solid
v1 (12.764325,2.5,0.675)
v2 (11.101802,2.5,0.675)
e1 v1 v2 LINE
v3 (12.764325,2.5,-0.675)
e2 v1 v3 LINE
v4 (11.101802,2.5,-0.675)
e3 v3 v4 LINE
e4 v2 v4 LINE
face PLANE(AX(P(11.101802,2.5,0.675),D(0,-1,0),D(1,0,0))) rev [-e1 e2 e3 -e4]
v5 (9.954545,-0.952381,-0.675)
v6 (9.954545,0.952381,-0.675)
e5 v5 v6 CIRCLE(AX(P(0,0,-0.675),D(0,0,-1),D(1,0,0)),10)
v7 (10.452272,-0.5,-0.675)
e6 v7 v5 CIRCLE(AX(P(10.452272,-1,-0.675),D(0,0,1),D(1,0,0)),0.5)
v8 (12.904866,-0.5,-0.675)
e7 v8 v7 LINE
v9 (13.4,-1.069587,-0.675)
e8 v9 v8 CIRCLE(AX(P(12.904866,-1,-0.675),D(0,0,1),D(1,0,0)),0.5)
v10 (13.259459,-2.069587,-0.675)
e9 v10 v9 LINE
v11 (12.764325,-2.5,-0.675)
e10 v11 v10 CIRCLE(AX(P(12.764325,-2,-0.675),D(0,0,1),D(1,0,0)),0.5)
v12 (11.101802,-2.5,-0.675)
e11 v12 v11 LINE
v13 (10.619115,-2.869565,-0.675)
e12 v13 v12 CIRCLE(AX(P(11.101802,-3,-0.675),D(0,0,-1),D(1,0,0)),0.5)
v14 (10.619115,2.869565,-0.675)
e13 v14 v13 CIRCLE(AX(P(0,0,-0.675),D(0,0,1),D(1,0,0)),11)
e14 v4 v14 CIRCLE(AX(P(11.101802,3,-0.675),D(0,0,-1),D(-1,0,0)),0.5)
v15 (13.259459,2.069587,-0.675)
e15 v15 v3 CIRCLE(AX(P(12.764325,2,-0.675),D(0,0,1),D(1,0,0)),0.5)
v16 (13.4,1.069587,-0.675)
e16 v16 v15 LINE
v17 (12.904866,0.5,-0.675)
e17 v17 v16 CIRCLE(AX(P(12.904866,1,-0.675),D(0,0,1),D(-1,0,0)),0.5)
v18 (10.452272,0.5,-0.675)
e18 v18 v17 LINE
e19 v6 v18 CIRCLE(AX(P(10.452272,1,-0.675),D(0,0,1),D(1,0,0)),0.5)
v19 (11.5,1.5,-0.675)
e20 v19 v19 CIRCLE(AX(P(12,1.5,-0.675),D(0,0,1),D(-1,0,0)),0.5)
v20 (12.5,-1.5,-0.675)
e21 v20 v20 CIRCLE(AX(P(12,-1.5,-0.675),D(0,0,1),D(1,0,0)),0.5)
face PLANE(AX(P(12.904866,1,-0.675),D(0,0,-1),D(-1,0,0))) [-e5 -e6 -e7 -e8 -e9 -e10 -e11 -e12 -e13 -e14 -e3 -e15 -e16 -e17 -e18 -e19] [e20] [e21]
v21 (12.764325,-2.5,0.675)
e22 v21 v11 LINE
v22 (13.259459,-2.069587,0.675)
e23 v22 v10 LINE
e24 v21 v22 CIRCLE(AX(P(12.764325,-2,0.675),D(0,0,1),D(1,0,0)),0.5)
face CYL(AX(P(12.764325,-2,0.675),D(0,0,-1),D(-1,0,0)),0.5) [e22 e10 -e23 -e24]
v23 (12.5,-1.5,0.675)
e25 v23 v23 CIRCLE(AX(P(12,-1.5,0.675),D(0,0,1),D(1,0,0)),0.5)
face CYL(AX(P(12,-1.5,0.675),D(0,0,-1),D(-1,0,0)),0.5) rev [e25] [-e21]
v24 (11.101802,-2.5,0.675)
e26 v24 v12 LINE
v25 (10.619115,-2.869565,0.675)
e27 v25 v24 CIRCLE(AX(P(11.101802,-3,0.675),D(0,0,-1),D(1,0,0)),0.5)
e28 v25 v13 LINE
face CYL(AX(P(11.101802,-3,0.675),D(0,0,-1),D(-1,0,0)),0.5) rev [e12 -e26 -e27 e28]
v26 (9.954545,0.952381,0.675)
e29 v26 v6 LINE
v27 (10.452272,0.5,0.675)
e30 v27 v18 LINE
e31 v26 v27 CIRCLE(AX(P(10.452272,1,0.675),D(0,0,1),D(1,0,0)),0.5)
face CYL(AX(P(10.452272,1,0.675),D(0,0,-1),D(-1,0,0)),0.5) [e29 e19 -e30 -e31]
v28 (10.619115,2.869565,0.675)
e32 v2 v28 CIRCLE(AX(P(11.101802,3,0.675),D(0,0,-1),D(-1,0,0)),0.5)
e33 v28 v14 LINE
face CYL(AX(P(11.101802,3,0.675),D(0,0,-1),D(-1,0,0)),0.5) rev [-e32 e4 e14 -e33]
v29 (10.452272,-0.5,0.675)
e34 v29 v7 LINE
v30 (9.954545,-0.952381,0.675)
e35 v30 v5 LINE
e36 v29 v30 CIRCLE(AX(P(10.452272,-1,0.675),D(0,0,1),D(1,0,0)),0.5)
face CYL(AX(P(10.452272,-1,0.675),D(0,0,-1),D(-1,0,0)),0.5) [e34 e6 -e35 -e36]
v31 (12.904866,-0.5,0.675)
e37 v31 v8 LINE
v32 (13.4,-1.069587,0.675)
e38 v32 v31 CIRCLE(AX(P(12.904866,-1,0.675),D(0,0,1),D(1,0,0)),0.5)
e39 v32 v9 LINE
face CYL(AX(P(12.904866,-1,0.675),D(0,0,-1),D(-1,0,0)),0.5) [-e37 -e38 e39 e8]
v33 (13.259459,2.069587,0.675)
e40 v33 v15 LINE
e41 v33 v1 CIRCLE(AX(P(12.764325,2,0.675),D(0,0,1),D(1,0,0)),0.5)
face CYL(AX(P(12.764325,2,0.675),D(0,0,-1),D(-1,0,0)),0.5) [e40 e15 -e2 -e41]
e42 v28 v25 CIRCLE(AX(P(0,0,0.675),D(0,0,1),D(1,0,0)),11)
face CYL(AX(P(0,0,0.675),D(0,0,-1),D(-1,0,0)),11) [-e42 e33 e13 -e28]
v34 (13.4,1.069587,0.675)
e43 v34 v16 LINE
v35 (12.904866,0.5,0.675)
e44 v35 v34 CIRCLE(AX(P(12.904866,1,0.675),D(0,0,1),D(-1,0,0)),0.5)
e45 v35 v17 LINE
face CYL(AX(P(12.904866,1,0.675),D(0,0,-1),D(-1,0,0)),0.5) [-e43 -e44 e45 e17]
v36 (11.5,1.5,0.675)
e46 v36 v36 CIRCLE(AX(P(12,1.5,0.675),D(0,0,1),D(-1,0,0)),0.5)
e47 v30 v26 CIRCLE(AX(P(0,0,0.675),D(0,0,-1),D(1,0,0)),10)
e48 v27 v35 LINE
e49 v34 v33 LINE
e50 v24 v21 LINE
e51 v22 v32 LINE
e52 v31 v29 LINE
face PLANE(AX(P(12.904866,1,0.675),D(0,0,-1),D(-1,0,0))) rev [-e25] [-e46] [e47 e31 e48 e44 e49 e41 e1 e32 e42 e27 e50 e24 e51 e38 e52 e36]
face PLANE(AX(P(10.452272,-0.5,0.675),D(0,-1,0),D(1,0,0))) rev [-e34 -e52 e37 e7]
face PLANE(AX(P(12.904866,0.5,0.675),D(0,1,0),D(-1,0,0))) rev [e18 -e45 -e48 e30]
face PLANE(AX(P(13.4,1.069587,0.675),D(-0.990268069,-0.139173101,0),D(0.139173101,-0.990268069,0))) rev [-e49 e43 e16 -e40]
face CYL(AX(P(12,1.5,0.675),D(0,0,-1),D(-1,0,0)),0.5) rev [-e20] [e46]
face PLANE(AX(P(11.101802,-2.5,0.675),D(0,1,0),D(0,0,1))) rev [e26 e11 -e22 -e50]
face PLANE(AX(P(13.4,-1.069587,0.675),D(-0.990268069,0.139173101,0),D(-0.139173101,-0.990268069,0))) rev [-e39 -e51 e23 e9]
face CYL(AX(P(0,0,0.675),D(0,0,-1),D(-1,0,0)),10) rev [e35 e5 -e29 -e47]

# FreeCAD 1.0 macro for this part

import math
import FreeCAD as App
import Part
import Sketcher
Q = App.Units.Quantity

doc = App.newDocument("Part")
params = doc.addObject("Spreadsheet::Sheet", "Params")
for row, (alias, value) in enumerate([
    ("sketch1_diameter", "1 mm"),
    ("sketch1_radius", "10 mm"),
    ("sketch1_radius2", "11 mm"),
    ("pad1_length", "1.35 mm"),
], start=1):
    params.set(f"A{row}", alias)
    params.set(f"B{row}", "=" + value)
    params.setAlias(f"B{row}", alias)

body = doc.addObject("PartDesign::Body", "Body")

sketch1 = doc.addObject("Sketcher::SketchObject", "Sketch")
body.addObject(sketch1)
sketch1.AttachmentSupport = (doc.XY_Plane, [""])
sketch1.MapMode = "FlatFace"
sketch1.addGeometry([
    Part.LineSegment(App.Vector(12.904866, -0.5, 0), App.Vector(10.452272, -0.5, 0)),
    Part.ArcOfCircle(Part.Circle(App.Vector(10.452272, -1, 0), App.Vector(0, 0, 1), 0.5), math.radians(90), math.radians(174.534976)),
    Part.ArcOfCircle(Part.Circle(App.Vector(0, 0, 0), App.Vector(0, 0, 1), 10), math.radians(5.465024), math.radians(354.534976)),
    Part.ArcOfCircle(Part.Circle(App.Vector(10.452272, 1, 0), App.Vector(0, 0, 1), 0.5), math.radians(-174.534976), math.radians(-90)),
    Part.LineSegment(App.Vector(10.452272, 0.5, 0), App.Vector(12.904866, 0.5, 0)),
    Part.ArcOfCircle(Part.Circle(App.Vector(12.904866, 1, 0), App.Vector(0, 0, 1), 0.5), math.radians(-90), math.radians(8)),
    Part.LineSegment(App.Vector(13.4, 1.069587, 0), App.Vector(13.259459, 2.069587, 0)),
    Part.ArcOfCircle(Part.Circle(App.Vector(12.764325, 2, 0), App.Vector(0, 0, 1), 0.5), math.radians(8), math.radians(90)),
    Part.LineSegment(App.Vector(12.764325, 2.5, 0), App.Vector(11.101802, 2.5, 0)),
    Part.ArcOfCircle(Part.Circle(App.Vector(11.101802, 3, 0), App.Vector(0, 0, 1), 0.5), math.radians(-164.878335), math.radians(-90)),
    Part.ArcOfCircle(Part.Circle(App.Vector(0, 0, 0), App.Vector(0, 0, 1), 11), math.radians(15.121665), math.radians(344.878335)),
    Part.ArcOfCircle(Part.Circle(App.Vector(11.101802, -3, 0), App.Vector(0, 0, 1), 0.5), math.radians(90), math.radians(164.878335)),
    Part.LineSegment(App.Vector(11.101802, -2.5, 0), App.Vector(12.764325, -2.5, 0)),
    Part.ArcOfCircle(Part.Circle(App.Vector(12.764325, -2, 0), App.Vector(0, 0, 1), 0.5), math.radians(-90), math.radians(-8)),
    Part.LineSegment(App.Vector(13.259459, -2.069587, 0), App.Vector(13.4, -1.069587, 0)),
    Part.ArcOfCircle(Part.Circle(App.Vector(12.904866, -1, 0), App.Vector(0, 0, 1), 0.5), math.radians(-8), math.radians(90)),
    Part.Circle(App.Vector(12, 1.5, 0), App.Vector(0, 0, 1), 0.5),
    Part.Circle(App.Vector(12, -1.5, 0), App.Vector(0, 0, 1), 0.5),
], False)
sketch1.addConstraint([
    Sketcher.Constraint("Tangent", 0, 2, 1, 1),
    Sketcher.Constraint("Tangent", 1, 2, 2, 2),
    Sketcher.Constraint("Tangent", 2, 1, 3, 1),
    Sketcher.Constraint("Tangent", 3, 2, 4, 1),
    Sketcher.Constraint("Tangent", 4, 2, 5, 1),
    Sketcher.Constraint("Tangent", 5, 2, 6, 1),
    Sketcher.Constraint("Tangent", 6, 2, 7, 1),
    Sketcher.Constraint("Tangent", 7, 2, 8, 1),
    Sketcher.Constraint("Tangent", 8, 2, 9, 2),
    Sketcher.Constraint("Tangent", 9, 1, 10, 1),
    Sketcher.Constraint("Tangent", 10, 2, 11, 2),
    Sketcher.Constraint("Tangent", 11, 1, 12, 1),
    Sketcher.Constraint("Tangent", 12, 2, 13, 1),
    Sketcher.Constraint("Tangent", 13, 2, 14, 1),
    Sketcher.Constraint("Tangent", 14, 2, 15, 1),
    Sketcher.Constraint("Tangent", 15, 2, 0, 1),
    Sketcher.Constraint("Horizontal", 0),
    Sketcher.Constraint("Horizontal", 4),
    Sketcher.Constraint("Horizontal", 8),
    Sketcher.Constraint("Horizontal", 12),
    Sketcher.Constraint("Coincident", 2, 3, -1, 1),
    Sketcher.Constraint("Coincident", 10, 3, -1, 1),
    Sketcher.Constraint("Equal", 1, 3),
    Sketcher.Constraint("Equal", 3, 5),
    Sketcher.Constraint("Equal", 5, 7),
    Sketcher.Constraint("Equal", 7, 9),
    Sketcher.Constraint("Equal", 9, 11),
    Sketcher.Constraint("Equal", 11, 13),
    Sketcher.Constraint("Equal", 13, 15),
    Sketcher.Constraint("Equal", 15, 16),
    Sketcher.Constraint("Equal", 16, 17),
    Sketcher.Constraint("Symmetric", 7, 3, 13, 3, -1),
    Sketcher.Constraint("Symmetric", 5, 3, 15, 3, -1),
    Sketcher.Constraint("Symmetric", 16, 3, 17, 3, -1),
    Sketcher.Constraint("Diameter", 16, Q("1 mm")),
    Sketcher.Constraint("Radius", 2, Q("10 mm")),
    Sketcher.Constraint("Radius", 10, Q("11 mm")),
    Sketcher.Constraint("Angle", 6, Q("98 deg")),
    Sketcher.Constraint("DistanceY", 1, 3, -1, 1, Q("1 mm")),
    Sketcher.Constraint("DistanceY", -1, 1, 7, 3, Q("2 mm")),
    Sketcher.Constraint("DistanceX", -1, 1, 16, 3, Q("12 mm")),
    Sketcher.Constraint("DistanceY", 17, 3, 0, 2, Q("1 mm")),
    Sketcher.Constraint("DistanceX", -1, 1, 5, 2, Q("13.4 mm")),
])
sketch1.setExpression("Constraints[34]", "Params.sketch1_diameter")
sketch1.setExpression("Constraints[35]", "Params.sketch1_radius")
sketch1.setExpression("Constraints[36]", "Params.sketch1_radius2")
pad1 = doc.addObject("PartDesign::Pad", "Pad")
body.addObject(pad1)
pad1.Profile = sketch1
pad1.setExpression("Length", "Params.pad1_length")
pad1.Midplane = True

doc.recompute()
